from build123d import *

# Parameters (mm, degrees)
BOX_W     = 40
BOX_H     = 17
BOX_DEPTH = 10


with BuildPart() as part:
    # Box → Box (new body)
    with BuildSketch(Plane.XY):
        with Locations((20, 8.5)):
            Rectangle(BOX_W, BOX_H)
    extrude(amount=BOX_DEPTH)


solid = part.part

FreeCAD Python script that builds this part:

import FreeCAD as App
import Part
import Sketcher
from FreeCAD import Vector
Q = App.Units.Quantity

doc = App.newDocument("Part")
body = doc.addObject("PartDesign::Body", "Body")

sketch1 = doc.addObject("Sketcher::SketchObject", "Sketch")
body.addObject(sketch1)
sketch1.AttachmentSupport = (doc.XY_Plane, [""])
sketch1.MapMode = "FlatFace"
sketch1.addGeometry(Part.LineSegment(Vector(0, 17, 0), Vector(0, 0, 0)), False)
sketch1.addGeometry(Part.LineSegment(Vector(0, 0, 0), Vector(40, 0, 0)), False)
sketch1.addGeometry(Part.LineSegment(Vector(40, 0, 0), Vector(40, 17, 0)), False)
sketch1.addGeometry(Part.LineSegment(Vector(40, 17, 0), Vector(0, 17, 0)), False)
sketch1.addConstraint(Sketcher.Constraint("Coincident", 0, 2, 1, 1))
sketch1.addConstraint(Sketcher.Constraint("Coincident", 1, 2, 2, 1))
sketch1.addConstraint(Sketcher.Constraint("Coincident", 2, 2, 3, 1))
sketch1.addConstraint(Sketcher.Constraint("Coincident", 3, 2, 0, 1))
sketch1.addConstraint(Sketcher.Constraint("Vertical", 0))
sketch1.addConstraint(Sketcher.Constraint("Horizontal", 1))
sketch1.addConstraint(Sketcher.Constraint("Vertical", 2))
sketch1.addConstraint(Sketcher.Constraint("Horizontal", 3))
sketch1.addConstraint(Sketcher.Constraint("Coincident", 0, 2, -1, 1))
sketch1.addConstraint(Sketcher.Constraint("DistanceX", 1, 1, 1, 2, Q("40 mm")))
sketch1.addConstraint(Sketcher.Constraint("DistanceY", 0, 2, 0, 1, Q("17 mm")))
pad1 = doc.addObject("PartDesign::Pad", "Pad")
body.addObject(pad1)
pad1.Profile = sketch1
pad1.Length = 10

doc.recompute()
